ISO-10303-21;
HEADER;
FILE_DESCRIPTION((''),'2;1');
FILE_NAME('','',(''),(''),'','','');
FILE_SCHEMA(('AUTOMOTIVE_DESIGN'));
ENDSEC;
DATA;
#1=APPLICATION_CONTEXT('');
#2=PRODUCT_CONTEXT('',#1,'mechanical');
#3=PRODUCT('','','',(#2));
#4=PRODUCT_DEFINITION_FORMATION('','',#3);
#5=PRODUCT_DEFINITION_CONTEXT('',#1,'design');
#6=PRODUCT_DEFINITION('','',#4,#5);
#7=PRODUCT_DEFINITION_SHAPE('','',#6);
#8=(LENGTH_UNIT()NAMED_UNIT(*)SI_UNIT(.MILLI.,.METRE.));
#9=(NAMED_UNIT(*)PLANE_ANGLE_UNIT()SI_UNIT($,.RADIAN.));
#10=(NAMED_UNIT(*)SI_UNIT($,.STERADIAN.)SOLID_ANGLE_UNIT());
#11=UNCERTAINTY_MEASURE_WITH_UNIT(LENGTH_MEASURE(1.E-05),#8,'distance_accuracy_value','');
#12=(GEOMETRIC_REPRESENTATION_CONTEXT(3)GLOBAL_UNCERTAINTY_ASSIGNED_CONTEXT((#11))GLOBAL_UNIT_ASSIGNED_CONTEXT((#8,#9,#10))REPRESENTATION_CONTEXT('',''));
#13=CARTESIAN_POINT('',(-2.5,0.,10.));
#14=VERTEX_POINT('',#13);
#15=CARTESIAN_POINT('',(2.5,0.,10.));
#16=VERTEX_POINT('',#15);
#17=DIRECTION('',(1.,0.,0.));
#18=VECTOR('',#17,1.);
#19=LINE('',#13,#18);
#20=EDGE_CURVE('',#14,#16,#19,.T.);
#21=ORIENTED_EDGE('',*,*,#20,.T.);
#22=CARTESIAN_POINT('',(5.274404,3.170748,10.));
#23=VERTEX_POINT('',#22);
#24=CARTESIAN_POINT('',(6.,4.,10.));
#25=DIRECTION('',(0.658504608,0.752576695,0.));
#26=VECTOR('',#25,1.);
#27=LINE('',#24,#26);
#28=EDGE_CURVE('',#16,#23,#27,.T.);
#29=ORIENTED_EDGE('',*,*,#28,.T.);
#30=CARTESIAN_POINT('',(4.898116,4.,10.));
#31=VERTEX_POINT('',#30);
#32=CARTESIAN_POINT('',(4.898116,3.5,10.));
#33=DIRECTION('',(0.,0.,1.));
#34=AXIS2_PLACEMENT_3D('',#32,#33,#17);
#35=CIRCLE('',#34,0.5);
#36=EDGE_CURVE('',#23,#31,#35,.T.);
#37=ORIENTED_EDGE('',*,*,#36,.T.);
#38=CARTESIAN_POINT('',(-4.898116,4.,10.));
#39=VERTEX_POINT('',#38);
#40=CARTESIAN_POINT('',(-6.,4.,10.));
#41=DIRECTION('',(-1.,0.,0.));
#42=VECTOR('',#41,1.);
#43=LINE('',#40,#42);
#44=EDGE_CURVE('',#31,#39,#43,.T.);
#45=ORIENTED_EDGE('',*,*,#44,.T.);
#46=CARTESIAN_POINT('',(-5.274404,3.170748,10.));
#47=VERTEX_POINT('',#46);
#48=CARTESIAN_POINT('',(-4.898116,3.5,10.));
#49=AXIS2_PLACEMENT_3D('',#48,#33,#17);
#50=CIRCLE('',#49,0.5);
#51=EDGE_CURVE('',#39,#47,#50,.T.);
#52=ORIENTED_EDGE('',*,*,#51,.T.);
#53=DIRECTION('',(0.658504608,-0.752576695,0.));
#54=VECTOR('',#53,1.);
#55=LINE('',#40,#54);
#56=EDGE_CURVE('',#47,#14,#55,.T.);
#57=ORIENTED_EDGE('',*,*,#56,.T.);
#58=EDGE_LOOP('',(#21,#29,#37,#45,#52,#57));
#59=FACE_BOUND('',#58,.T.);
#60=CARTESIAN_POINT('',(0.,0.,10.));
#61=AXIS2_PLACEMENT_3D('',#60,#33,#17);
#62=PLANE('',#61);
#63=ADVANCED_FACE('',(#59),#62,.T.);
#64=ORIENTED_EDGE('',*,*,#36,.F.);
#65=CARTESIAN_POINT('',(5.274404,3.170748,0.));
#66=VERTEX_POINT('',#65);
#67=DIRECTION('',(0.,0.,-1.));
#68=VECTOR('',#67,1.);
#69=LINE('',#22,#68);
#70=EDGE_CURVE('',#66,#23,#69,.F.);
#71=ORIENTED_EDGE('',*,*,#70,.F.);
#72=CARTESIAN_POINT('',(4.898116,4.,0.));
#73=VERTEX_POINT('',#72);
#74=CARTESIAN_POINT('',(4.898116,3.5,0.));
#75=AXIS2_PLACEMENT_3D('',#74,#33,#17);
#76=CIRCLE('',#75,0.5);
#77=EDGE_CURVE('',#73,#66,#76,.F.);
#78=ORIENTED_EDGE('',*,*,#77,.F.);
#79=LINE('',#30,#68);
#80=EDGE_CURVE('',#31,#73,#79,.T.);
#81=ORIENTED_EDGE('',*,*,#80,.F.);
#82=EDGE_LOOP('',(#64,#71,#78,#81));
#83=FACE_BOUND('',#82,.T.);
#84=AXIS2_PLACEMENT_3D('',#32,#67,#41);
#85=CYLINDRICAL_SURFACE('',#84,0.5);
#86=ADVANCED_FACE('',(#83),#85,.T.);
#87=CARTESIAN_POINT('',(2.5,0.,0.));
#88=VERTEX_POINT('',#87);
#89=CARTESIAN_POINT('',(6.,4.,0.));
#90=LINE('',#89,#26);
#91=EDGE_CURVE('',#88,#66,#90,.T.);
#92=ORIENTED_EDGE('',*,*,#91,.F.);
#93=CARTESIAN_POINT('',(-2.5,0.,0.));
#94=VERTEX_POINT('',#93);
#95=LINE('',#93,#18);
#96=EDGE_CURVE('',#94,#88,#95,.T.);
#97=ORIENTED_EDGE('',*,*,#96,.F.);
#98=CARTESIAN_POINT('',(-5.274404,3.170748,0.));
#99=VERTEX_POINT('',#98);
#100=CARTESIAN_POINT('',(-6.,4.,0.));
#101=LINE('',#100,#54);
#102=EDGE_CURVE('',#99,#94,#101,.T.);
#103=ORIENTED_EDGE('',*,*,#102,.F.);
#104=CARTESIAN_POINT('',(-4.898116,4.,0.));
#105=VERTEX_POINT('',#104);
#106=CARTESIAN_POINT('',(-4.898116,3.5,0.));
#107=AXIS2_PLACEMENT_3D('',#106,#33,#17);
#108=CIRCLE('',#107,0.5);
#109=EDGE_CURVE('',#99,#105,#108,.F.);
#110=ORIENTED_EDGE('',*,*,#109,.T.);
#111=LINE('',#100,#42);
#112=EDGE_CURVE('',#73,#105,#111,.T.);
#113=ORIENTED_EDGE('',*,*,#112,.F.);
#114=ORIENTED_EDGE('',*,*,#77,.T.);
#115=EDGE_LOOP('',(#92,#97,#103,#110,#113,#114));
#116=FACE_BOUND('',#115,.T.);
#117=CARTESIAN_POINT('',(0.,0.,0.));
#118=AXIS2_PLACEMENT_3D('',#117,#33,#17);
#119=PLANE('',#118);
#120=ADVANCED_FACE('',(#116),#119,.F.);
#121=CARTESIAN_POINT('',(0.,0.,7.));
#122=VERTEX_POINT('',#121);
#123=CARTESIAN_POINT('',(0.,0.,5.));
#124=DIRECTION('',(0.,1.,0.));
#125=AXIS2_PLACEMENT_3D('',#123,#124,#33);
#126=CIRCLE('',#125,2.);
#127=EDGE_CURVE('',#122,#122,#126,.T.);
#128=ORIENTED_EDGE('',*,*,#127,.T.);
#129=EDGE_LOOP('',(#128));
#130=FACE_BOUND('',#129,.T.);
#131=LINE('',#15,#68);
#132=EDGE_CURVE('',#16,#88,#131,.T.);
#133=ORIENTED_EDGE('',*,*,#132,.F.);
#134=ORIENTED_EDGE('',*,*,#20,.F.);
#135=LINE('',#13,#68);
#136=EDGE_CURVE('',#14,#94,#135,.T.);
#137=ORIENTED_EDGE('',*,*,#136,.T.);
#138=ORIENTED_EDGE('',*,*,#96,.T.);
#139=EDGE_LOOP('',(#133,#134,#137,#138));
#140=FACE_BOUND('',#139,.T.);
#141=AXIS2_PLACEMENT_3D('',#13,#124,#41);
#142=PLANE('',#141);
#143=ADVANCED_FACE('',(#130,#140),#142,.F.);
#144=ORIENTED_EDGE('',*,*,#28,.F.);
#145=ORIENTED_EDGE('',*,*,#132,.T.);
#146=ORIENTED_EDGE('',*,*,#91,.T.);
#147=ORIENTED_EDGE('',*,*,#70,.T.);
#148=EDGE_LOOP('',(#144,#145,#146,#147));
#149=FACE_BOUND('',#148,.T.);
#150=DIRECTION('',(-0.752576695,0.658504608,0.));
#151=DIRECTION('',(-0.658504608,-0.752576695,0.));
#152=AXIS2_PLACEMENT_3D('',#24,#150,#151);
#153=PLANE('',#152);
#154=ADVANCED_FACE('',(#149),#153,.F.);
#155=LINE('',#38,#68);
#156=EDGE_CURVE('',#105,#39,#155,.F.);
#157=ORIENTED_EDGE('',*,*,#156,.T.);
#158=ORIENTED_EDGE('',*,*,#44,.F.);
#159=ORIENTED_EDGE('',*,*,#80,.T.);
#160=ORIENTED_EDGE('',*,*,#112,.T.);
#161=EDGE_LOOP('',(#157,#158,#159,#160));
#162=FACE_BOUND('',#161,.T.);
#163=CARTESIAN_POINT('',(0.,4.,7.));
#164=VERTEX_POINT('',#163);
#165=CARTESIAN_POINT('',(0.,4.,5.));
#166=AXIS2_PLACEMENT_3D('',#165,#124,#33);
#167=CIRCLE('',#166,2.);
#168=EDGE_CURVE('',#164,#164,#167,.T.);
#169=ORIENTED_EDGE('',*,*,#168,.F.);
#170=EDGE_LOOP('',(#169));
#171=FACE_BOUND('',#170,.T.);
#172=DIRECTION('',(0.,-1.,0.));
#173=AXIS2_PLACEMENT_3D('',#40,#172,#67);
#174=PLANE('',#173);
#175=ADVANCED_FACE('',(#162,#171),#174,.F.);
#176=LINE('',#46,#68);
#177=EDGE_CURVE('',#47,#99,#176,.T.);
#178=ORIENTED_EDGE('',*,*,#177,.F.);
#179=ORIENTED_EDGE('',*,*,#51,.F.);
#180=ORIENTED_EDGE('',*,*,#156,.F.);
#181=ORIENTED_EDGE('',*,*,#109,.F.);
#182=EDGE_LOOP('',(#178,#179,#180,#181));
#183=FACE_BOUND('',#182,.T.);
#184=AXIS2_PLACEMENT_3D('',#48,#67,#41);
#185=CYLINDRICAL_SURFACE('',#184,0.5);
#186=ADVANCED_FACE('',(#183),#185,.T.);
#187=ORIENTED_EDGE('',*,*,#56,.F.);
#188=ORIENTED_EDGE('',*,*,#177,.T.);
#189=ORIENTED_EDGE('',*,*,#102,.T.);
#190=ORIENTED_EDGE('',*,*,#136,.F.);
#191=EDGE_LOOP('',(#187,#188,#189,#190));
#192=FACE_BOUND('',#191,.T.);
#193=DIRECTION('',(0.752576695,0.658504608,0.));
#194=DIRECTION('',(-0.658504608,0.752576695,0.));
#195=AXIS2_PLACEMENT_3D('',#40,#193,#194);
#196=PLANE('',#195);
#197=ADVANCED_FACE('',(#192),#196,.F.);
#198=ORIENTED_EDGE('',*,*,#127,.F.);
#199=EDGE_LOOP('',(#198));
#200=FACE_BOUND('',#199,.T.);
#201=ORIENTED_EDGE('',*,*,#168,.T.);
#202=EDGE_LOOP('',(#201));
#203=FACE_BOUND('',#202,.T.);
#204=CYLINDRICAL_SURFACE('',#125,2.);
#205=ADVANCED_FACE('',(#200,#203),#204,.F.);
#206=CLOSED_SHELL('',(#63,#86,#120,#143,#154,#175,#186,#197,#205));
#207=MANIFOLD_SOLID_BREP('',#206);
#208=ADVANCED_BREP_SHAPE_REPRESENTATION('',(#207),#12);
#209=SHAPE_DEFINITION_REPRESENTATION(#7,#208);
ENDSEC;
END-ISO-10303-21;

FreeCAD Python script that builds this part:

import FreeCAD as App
import Part
import Sketcher
from FreeCAD import Vector


def edges_at(feature, points):
    """Names of the edges that pass closest to the given points."""
    edges = feature.Shape.Edges
    near = lambda p: min(range(len(edges)), key=lambda i: edges[i].distToShape(Part.Vertex(*p))[0])
    return sorted({f"Edge{near(p) + 1}" for p in points})


def add_polygon(sketch, points):
    """Adds a closed chain of lines whose ends are joined by coincident constraints."""
    first, n = sketch.GeometryCount, len(points)
    for a, b in zip(points, points[1:] + points[:1]):
        sketch.addGeometry(Part.LineSegment(App.Vector(*a, 0), App.Vector(*b, 0)), False)
    for i in range(n):
        sketch.addConstraint(Sketcher.Constraint("Coincident", first + i, 2, first + (i + 1) % n, 1))

doc = App.newDocument("Part")
params = doc.addObject("Spreadsheet::Sheet", "Params")
for row, (alias, value) in enumerate([
    ("sketch1_width", "12 mm"),
    ("sketch1_width2", "5 mm"),
    ("pad1_length", "10 mm"),
    ("sketch2_diameter", "4 mm"),
    ("fillet_radius", "0.5 mm"),
], start=1):
    params.set(f"A{row}", alias)
    params.set(f"B{row}", "=" + value)
    params.setAlias(f"B{row}", alias)

body = doc.addObject("PartDesign::Body", "Body")

sketch1 = body.newObject("Sketcher::SketchObject", "Sketch")
sketch1.AttachmentSupport = (doc.getObject("XY_Plane"), [""])
sketch1.MapMode = "FlatFace"
add_polygon(sketch1, [(6, 4), (-6, 4), (-2, 0), (2, 0)])
sketch1.addConstraint(Sketcher.Constraint("Horizontal", 0))
sketch1.addConstraint(Sketcher.Constraint("Horizontal", 2))
sketch1.addConstraint(Sketcher.Constraint("Symmetric", 1, 2, 2, 2, -1, 1))
sketch1.addConstraint(Sketcher.Constraint("Equal", 1, 3))
sketch1.addConstraint(Sketcher.Constraint("DistanceX", 0, 2, 0, 1, 12.0))
sketch1.addConstraint(Sketcher.Constraint("DistanceX", 2, 1, 2, 2, 5.0))
sketch1.addConstraint(Sketcher.Constraint("DistanceY", -1, 1, 0, 2, 4.0))
sketch1.setExpression("Constraints[8]", "Params.sketch1_width")
sketch1.setExpression("Constraints[9]", "Params.sketch1_width2")
pad1 = body.newObject("PartDesign::Pad", "Pad")
pad1.Profile = sketch1
pad1.setExpression("Length", "Params.pad1_length")

sketch2 = body.newObject("Sketcher::SketchObject", "Sketch001")
sketch2.AttachmentSupport = (doc.getObject("XZ_Plane"), [""])
sketch2.MapMode = "FlatFace"
sketch2.AttachmentOffset = App.Placement(Vector(0, 0, -4), App.Rotation())
sketch2.addGeometry(Part.Circle(Vector(0, 5, 0), Vector(0, 0, 1), 2), False)
sketch2.addConstraint(Sketcher.Constraint("PointOnObject", 0, 3, -2))
sketch2.addConstraint(Sketcher.Constraint("Diameter", 0, 4.0))
sketch2.addConstraint(Sketcher.Constraint("DistanceY", -1, 1, 0, 3, 5.0))
sketch2.setExpression("Constraints[1]", "Params.sketch2_diameter")
pocket1 = body.newObject("PartDesign::Pocket", "Pocket")
pocket1.Profile = sketch2
pocket1.Type = "ThroughAll"
pocket1.Reversed = True
doc.recompute()

fillet = body.newObject("PartDesign::Fillet", "Fillet")
fillet.Base = (pocket1, edges_at(pocket1, [(-6, 4, 5), (6, 4, 5)]))
fillet.setExpression("Radius", "Params.fillet_radius")

doc.recompute()
